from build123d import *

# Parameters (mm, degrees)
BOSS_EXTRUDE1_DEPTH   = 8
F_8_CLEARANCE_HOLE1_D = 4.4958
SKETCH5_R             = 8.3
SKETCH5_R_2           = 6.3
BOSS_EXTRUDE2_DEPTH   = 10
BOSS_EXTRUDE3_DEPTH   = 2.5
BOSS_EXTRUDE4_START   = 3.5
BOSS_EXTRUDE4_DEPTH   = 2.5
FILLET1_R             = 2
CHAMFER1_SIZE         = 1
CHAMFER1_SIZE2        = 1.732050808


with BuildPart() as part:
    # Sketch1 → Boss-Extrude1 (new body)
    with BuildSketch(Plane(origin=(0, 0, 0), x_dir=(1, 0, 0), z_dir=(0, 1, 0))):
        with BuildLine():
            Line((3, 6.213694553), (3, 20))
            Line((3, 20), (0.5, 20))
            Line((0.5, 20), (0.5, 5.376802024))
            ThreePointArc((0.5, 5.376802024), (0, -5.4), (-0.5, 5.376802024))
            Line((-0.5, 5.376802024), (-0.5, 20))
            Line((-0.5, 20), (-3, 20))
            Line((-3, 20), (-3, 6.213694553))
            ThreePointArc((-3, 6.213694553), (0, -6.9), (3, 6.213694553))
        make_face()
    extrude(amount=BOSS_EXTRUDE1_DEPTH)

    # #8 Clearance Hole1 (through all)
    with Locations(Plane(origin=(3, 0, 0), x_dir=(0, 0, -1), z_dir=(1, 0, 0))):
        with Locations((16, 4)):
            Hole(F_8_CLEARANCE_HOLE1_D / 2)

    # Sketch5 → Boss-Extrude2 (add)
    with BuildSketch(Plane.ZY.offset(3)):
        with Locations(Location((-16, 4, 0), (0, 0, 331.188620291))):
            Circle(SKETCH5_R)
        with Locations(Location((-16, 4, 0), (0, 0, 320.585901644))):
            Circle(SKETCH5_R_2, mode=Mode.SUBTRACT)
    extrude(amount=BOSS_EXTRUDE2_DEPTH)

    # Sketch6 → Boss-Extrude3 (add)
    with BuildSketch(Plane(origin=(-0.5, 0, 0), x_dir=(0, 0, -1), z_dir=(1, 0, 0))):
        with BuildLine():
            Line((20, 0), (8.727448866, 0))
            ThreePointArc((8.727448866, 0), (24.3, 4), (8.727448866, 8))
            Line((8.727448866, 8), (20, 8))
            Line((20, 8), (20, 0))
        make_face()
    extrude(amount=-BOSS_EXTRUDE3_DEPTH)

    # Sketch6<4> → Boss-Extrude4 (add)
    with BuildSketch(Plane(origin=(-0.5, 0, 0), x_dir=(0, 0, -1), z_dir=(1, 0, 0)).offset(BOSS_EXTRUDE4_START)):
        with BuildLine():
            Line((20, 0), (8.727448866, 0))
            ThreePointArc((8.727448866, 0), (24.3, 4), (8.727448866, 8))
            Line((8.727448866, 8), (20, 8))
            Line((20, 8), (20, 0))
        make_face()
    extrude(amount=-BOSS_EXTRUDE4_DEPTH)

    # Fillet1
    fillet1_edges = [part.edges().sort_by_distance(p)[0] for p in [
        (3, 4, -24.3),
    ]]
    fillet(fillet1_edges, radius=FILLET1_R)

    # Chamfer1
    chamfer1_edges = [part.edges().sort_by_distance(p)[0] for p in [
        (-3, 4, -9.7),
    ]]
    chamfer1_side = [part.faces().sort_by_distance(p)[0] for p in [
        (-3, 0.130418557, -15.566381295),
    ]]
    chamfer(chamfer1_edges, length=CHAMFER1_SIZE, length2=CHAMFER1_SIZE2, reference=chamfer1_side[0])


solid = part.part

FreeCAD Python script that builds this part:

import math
import FreeCAD as App
import Part
import Sketcher

V = App.Vector


def edges_at(feature, points):
    """Names of the edges that pass closest to the given points."""
    edges = feature.Shape.Edges
    near = lambda p: min(range(len(edges)), key=lambda i: edges[i].distToShape(Part.Vertex(*p))[0])
    return sorted({f"Edge{near(p) + 1}" for p in points})

doc = App.newDocument("Part")
body = doc.addObject("PartDesign::Body", "Body")

sketch1 = doc.addObject("Sketcher::SketchObject", "Sketch")
body.addObject(sketch1)
sketch1.AttachmentSupport = (doc.XZ_Plane, [""])
sketch1.MapMode = "FlatFace"
sketch1.addGeometry([
    Part.LineSegment(V(3, -6.213695, 0), V(3, -20, 0)),
    Part.LineSegment(V(3, -20, 0), V(0.5, -20, 0)),
    Part.LineSegment(V(0.5, -20, 0), V(0.5, -5.376802, 0)),
    Part.ArcOfCircle(Part.Circle(V(0, 0, 0), V(0, 0, 1), 5.4), math.radians(-84.687225), math.radians(264.687225)),
    Part.LineSegment(V(-0.5, -5.376802, 0), V(-0.5, -20, 0)),
    Part.LineSegment(V(-0.5, -20, 0), V(-3, -20, 0)),
    Part.LineSegment(V(-3, -20, 0), V(-3, -6.213695, 0)),
    Part.ArcOfCircle(Part.Circle(V(0, 0, 0), V(0, 0, 1), 6.9), math.radians(-64.228538), math.radians(244.228538)),
], False)
sketch1.addConstraint([
    Sketcher.Constraint("Coincident", 0, 2, 1, 1),
    Sketcher.Constraint("Coincident", 1, 2, 2, 1),
    Sketcher.Constraint("Coincident", 2, 2, 3, 1),
    Sketcher.Constraint("Coincident", 3, 2, 4, 1),
    Sketcher.Constraint("Coincident", 4, 2, 5, 1),
    Sketcher.Constraint("Coincident", 5, 2, 6, 1),
    Sketcher.Constraint("Coincident", 6, 2, 7, 2),
    Sketcher.Constraint("Coincident", 7, 1, 0, 1),
    Sketcher.Constraint("Vertical", 0),
    Sketcher.Constraint("Horizontal", 1),
    Sketcher.Constraint("Vertical", 2),
    Sketcher.Constraint("Vertical", 4),
    Sketcher.Constraint("Horizontal", 5),
    Sketcher.Constraint("Vertical", 6),
    Sketcher.Constraint("Coincident", 3, 3, -1, 1),
    Sketcher.Constraint("Coincident", 7, 3, -1, 1),
    Sketcher.Constraint("Symmetric", 1, 2, 4, 2, -2),
    Sketcher.Constraint("Horizontal", 6, 2, 7, 1),
    Sketcher.Constraint("Radius", 3, 5.4),
    Sketcher.Constraint("Radius", 7, 6.9),
    Sketcher.Constraint("DistanceX", 1, 2, 1, 1, 2.5),
    Sketcher.Constraint("DistanceX", -1, 1, 0, 2, 3.0),
    Sketcher.Constraint("DistanceY", 0, 2, -1, 1, 20.0),
])
pad1 = doc.addObject("PartDesign::Pad", "Pad")
body.addObject(pad1)
pad1.Profile = sketch1
pad1.Length = 8
pad1.Reversed = True

sketch2 = doc.addObject("Sketcher::SketchObject", "Sketch001")
body.addObject(sketch2)
sketch2.AttachmentSupport = (doc.YZ_Plane, [""])
sketch2.MapMode = "FlatFace"
sketch2.AttachmentOffset = App.Placement(V(0, 0, 3), App.Rotation())
sketch2.addGeometry(Part.Circle(V(4, -16, 0), V(0, 0, 1), 2.2479), False)
sketch2.addConstraint([
    Sketcher.Constraint("DistanceX", -1, 1, 0, 3, 4.0),
    Sketcher.Constraint("DistanceY", 0, 3, -1, 1, 16.0),
    Sketcher.Constraint("Diameter", 0, 4.4958),
])
doc.recompute()
hole = doc.addObject("PartDesign::Hole", "Hole")
body.addObject(hole)
hole.Profile = sketch2
hole.ThreadType = "None"
hole.Diameter = 4.4958
hole.DepthType = "ThroughAll"

sketch3 = doc.addObject("Sketcher::SketchObject", "Sketch002")
body.addObject(sketch3)
sketch3.AttachmentSupport = (doc.YZ_Plane, [""])
sketch3.MapMode = "FlatFace"
sketch3.AttachmentOffset = App.Placement(V(0, 0, -3), App.Rotation())
sketch3.addGeometry([
    Part.Circle(V(4, -16, 0), V(0, 0, 1), 8.3),
    Part.Circle(V(4, -16, 0), V(0, 0, 1), 6.3),
], False)
sketch3.addConstraint([
    Sketcher.Constraint("Coincident", 1, 3, 0, 3),
    Sketcher.Constraint("Diameter", 0, 16.6),
    Sketcher.Constraint("Diameter", 1, 12.6),
    Sketcher.Constraint("DistanceX", -1, 1, 0, 3, 4.0),
    Sketcher.Constraint("DistanceY", 0, 3, -1, 1, 16.0),
])
pad2 = doc.addObject("PartDesign::Pad", "Pad001")
body.addObject(pad2)
pad2.Profile = sketch3
pad2.Length = 10
pad2.Reversed = True

sketch4 = doc.addObject("Sketcher::SketchObject", "Sketch003")
body.addObject(sketch4)
sketch4.AttachmentSupport = (doc.YZ_Plane, [""])
sketch4.MapMode = "FlatFace"
sketch4.AttachmentOffset = App.Placement(V(0, 0, -0.5), App.Rotation())
sketch4.addGeometry([
    Part.LineSegment(V(0, -20, 0), V(0, -8.727449, 0)),
    Part.ArcOfCircle(Part.Circle(V(4, -16, 0), V(0, 0, 1), 8.3), math.radians(118.81138), math.radians(421.18862)),
    Part.LineSegment(V(8, -8.727449, 0), V(8, -20, 0)),
    Part.LineSegment(V(8, -20, 0), V(0, -20, 0)),
], False)
sketch4.addConstraint([
    Sketcher.Constraint("Coincident", 0, 2, 1, 1),
    Sketcher.Constraint("Coincident", 1, 2, 2, 1),
    Sketcher.Constraint("Coincident", 2, 2, 3, 1),
    Sketcher.Constraint("Coincident", 3, 2, 0, 1),
    Sketcher.Constraint("Vertical", 0),
    Sketcher.Constraint("Vertical", 2),
    Sketcher.Constraint("Horizontal", 3),
    Sketcher.Constraint("PointOnObject", 0, 2, -2),
    Sketcher.Constraint("Horizontal", 0, 2, 1, 2),
    Sketcher.Constraint("Radius", 1, 8.3),
    Sketcher.Constraint("DistanceX", 3, 2, 3, 1, 8.0),
    Sketcher.Constraint("DistanceY", 1, 3, -1, 1, 16.0),
    Sketcher.Constraint("DistanceY", 2, 2, -1, 1, 20.0),
])
pad3 = doc.addObject("PartDesign::Pad", "Pad002")
body.addObject(pad3)
pad3.Profile = sketch4
pad3.Length = 2.5
pad3.Reversed = True

sketch5 = doc.addObject("Sketcher::SketchObject", "Sketch004")
body.addObject(sketch5)
sketch5.AttachmentSupport = (doc.YZ_Plane, [""])
sketch5.MapMode = "FlatFace"
sketch5.AttachmentOffset = App.Placement(V(0, 0, 3), App.Rotation())
sketch5.addGeometry([
    Part.LineSegment(V(0, -20, 0), V(0, -8.727449, 0)),
    Part.ArcOfCircle(Part.Circle(V(4, -16, 0), V(0, 0, 1), 8.3), math.radians(118.81138), math.radians(421.18862)),
    Part.LineSegment(V(8, -8.727449, 0), V(8, -20, 0)),
    Part.LineSegment(V(8, -20, 0), V(0, -20, 0)),
], False)
sketch5.addConstraint([
    Sketcher.Constraint("Coincident", 0, 2, 1, 1),
    Sketcher.Constraint("Coincident", 1, 2, 2, 1),
    Sketcher.Constraint("Coincident", 2, 2, 3, 1),
    Sketcher.Constraint("Coincident", 3, 2, 0, 1),
    Sketcher.Constraint("Vertical", 0),
    Sketcher.Constraint("Vertical", 2),
    Sketcher.Constraint("Horizontal", 3),
    Sketcher.Constraint("PointOnObject", 0, 2, -2),
    Sketcher.Constraint("Horizontal", 0, 2, 1, 2),
    Sketcher.Constraint("Radius", 1, 8.3),
    Sketcher.Constraint("DistanceX", 3, 2, 3, 1, 8.0),
    Sketcher.Constraint("DistanceY", 1, 3, -1, 1, 16.0),
    Sketcher.Constraint("DistanceY", 2, 2, -1, 1, 20.0),
])
pad4 = doc.addObject("PartDesign::Pad", "Pad003")
body.addObject(pad4)
pad4.Profile = sketch5
pad4.Length = 2.5
pad4.Reversed = True
doc.recompute()

fillet = doc.addObject("PartDesign::Fillet", "Fillet")
body.addObject(fillet)
fillet.Base = (pad4, edges_at(pad4, [(3, 4, -24.3)]))
fillet.Radius = 2
doc.recompute()

chamfer = doc.addObject("PartDesign::Chamfer", "Chamfer")
body.addObject(chamfer)
chamfer.Base = (fillet, edges_at(fillet, [(-3, 8, -20.867)]))
chamfer.ChamferType = "Two distances"
chamfer.Size = 1
chamfer.Size2 = 1.732051

doc.recompute()
